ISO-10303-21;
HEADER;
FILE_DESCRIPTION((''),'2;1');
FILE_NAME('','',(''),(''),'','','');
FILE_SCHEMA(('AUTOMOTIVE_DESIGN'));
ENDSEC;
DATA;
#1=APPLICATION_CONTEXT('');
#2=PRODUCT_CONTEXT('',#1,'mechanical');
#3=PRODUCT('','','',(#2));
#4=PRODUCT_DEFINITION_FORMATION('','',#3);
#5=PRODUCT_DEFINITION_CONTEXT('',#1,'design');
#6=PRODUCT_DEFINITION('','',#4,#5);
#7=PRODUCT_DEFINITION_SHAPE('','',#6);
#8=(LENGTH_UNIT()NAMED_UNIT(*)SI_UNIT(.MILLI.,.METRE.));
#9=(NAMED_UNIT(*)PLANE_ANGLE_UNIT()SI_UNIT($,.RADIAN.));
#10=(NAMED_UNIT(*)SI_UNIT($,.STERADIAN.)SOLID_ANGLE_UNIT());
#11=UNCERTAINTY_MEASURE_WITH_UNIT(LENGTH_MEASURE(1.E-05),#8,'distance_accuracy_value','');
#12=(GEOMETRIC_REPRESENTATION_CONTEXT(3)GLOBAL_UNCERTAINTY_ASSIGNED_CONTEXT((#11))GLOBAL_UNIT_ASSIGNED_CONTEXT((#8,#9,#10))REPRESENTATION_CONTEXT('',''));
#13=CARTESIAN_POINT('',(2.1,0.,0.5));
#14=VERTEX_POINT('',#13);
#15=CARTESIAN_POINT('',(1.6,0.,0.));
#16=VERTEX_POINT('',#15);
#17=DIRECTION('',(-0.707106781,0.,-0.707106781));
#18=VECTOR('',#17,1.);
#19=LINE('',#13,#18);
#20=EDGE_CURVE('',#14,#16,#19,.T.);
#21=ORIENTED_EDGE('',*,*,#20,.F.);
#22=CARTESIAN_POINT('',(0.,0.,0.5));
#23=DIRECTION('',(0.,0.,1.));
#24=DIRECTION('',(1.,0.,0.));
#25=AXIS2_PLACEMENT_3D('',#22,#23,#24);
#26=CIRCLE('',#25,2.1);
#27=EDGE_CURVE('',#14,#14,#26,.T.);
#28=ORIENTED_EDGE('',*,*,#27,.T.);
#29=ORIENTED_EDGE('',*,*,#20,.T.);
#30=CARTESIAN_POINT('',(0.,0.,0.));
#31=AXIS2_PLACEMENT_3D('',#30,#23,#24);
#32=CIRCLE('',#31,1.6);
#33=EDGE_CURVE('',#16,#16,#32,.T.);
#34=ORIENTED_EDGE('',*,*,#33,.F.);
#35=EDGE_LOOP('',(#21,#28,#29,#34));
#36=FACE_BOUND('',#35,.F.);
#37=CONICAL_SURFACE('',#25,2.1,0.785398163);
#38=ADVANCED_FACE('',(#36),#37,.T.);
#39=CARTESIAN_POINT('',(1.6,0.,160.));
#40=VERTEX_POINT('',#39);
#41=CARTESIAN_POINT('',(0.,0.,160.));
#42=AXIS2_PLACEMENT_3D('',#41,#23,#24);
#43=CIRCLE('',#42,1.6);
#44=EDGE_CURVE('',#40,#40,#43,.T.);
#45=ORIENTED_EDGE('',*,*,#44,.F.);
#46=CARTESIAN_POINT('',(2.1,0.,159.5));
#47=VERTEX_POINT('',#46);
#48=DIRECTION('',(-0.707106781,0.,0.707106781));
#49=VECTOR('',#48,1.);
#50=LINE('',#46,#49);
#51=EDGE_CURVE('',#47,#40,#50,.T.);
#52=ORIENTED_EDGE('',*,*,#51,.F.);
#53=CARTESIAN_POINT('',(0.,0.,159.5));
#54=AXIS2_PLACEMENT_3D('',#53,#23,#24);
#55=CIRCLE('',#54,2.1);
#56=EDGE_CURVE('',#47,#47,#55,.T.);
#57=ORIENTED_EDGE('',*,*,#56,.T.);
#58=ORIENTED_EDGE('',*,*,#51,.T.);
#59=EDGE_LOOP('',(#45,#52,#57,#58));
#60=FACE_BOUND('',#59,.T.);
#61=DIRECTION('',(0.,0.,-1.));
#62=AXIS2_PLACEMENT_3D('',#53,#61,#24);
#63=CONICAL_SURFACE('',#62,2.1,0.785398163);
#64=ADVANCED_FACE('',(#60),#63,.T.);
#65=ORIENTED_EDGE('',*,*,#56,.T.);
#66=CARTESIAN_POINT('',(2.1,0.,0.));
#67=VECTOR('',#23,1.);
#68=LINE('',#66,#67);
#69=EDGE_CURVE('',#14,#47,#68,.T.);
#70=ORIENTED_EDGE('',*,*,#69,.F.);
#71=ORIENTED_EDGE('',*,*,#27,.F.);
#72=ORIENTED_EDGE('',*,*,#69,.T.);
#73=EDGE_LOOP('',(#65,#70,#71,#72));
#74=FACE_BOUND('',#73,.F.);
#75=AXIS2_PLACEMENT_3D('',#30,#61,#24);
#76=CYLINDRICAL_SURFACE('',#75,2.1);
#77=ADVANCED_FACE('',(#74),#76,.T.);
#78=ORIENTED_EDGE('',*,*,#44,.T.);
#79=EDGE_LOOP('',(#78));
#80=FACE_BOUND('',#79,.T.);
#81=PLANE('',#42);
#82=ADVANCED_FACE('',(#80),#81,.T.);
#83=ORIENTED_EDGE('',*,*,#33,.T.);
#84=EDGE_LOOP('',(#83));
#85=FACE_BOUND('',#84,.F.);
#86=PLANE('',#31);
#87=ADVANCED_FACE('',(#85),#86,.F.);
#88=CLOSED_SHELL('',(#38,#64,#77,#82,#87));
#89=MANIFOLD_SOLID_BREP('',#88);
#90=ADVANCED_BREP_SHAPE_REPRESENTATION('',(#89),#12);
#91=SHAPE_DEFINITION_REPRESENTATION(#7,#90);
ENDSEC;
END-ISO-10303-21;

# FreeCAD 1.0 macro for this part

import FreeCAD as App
import Part
import Sketcher
Q = App.Units.Quantity


def edges_at(feature, points):
    """Names of the edges that pass closest to the given points."""
    edges = feature.Shape.Edges
    near = lambda p: min(range(len(edges)), key=lambda i: edges[i].distToShape(Part.Vertex(*p))[0])
    return sorted({f"Edge{near(p) + 1}" for p in points})

doc = App.newDocument("Part")
body = doc.addObject("PartDesign::Body", "Body")

sketch1 = body.newObject("Sketcher::SketchObject", "Sketch")
sketch1.AttachmentSupport = (doc.getObject("XY_Plane"), [""])
sketch1.MapMode = "FlatFace"
sketch1.addGeometry(Part.Circle(App.Vector(0, 0, 0), App.Vector(0, 0, 1), 2.1), False)
sketch1.addConstraint([
    Sketcher.Constraint("Coincident", 0, 3, -1, 1),
    Sketcher.Constraint("Diameter", 0, Q("4.2 mm")),
])
pad1 = body.newObject("PartDesign::Pad", "Pad")
pad1.Profile = sketch1
pad1.Length = 160
doc.recompute()

chamfer = body.newObject("PartDesign::Chamfer", "Chamfer")
chamfer.Base = (pad1, edges_at(pad1, [(-2.1, 0, 160), (-2.1, 0, 0)]))
chamfer.Size = 0.5

doc.recompute()
